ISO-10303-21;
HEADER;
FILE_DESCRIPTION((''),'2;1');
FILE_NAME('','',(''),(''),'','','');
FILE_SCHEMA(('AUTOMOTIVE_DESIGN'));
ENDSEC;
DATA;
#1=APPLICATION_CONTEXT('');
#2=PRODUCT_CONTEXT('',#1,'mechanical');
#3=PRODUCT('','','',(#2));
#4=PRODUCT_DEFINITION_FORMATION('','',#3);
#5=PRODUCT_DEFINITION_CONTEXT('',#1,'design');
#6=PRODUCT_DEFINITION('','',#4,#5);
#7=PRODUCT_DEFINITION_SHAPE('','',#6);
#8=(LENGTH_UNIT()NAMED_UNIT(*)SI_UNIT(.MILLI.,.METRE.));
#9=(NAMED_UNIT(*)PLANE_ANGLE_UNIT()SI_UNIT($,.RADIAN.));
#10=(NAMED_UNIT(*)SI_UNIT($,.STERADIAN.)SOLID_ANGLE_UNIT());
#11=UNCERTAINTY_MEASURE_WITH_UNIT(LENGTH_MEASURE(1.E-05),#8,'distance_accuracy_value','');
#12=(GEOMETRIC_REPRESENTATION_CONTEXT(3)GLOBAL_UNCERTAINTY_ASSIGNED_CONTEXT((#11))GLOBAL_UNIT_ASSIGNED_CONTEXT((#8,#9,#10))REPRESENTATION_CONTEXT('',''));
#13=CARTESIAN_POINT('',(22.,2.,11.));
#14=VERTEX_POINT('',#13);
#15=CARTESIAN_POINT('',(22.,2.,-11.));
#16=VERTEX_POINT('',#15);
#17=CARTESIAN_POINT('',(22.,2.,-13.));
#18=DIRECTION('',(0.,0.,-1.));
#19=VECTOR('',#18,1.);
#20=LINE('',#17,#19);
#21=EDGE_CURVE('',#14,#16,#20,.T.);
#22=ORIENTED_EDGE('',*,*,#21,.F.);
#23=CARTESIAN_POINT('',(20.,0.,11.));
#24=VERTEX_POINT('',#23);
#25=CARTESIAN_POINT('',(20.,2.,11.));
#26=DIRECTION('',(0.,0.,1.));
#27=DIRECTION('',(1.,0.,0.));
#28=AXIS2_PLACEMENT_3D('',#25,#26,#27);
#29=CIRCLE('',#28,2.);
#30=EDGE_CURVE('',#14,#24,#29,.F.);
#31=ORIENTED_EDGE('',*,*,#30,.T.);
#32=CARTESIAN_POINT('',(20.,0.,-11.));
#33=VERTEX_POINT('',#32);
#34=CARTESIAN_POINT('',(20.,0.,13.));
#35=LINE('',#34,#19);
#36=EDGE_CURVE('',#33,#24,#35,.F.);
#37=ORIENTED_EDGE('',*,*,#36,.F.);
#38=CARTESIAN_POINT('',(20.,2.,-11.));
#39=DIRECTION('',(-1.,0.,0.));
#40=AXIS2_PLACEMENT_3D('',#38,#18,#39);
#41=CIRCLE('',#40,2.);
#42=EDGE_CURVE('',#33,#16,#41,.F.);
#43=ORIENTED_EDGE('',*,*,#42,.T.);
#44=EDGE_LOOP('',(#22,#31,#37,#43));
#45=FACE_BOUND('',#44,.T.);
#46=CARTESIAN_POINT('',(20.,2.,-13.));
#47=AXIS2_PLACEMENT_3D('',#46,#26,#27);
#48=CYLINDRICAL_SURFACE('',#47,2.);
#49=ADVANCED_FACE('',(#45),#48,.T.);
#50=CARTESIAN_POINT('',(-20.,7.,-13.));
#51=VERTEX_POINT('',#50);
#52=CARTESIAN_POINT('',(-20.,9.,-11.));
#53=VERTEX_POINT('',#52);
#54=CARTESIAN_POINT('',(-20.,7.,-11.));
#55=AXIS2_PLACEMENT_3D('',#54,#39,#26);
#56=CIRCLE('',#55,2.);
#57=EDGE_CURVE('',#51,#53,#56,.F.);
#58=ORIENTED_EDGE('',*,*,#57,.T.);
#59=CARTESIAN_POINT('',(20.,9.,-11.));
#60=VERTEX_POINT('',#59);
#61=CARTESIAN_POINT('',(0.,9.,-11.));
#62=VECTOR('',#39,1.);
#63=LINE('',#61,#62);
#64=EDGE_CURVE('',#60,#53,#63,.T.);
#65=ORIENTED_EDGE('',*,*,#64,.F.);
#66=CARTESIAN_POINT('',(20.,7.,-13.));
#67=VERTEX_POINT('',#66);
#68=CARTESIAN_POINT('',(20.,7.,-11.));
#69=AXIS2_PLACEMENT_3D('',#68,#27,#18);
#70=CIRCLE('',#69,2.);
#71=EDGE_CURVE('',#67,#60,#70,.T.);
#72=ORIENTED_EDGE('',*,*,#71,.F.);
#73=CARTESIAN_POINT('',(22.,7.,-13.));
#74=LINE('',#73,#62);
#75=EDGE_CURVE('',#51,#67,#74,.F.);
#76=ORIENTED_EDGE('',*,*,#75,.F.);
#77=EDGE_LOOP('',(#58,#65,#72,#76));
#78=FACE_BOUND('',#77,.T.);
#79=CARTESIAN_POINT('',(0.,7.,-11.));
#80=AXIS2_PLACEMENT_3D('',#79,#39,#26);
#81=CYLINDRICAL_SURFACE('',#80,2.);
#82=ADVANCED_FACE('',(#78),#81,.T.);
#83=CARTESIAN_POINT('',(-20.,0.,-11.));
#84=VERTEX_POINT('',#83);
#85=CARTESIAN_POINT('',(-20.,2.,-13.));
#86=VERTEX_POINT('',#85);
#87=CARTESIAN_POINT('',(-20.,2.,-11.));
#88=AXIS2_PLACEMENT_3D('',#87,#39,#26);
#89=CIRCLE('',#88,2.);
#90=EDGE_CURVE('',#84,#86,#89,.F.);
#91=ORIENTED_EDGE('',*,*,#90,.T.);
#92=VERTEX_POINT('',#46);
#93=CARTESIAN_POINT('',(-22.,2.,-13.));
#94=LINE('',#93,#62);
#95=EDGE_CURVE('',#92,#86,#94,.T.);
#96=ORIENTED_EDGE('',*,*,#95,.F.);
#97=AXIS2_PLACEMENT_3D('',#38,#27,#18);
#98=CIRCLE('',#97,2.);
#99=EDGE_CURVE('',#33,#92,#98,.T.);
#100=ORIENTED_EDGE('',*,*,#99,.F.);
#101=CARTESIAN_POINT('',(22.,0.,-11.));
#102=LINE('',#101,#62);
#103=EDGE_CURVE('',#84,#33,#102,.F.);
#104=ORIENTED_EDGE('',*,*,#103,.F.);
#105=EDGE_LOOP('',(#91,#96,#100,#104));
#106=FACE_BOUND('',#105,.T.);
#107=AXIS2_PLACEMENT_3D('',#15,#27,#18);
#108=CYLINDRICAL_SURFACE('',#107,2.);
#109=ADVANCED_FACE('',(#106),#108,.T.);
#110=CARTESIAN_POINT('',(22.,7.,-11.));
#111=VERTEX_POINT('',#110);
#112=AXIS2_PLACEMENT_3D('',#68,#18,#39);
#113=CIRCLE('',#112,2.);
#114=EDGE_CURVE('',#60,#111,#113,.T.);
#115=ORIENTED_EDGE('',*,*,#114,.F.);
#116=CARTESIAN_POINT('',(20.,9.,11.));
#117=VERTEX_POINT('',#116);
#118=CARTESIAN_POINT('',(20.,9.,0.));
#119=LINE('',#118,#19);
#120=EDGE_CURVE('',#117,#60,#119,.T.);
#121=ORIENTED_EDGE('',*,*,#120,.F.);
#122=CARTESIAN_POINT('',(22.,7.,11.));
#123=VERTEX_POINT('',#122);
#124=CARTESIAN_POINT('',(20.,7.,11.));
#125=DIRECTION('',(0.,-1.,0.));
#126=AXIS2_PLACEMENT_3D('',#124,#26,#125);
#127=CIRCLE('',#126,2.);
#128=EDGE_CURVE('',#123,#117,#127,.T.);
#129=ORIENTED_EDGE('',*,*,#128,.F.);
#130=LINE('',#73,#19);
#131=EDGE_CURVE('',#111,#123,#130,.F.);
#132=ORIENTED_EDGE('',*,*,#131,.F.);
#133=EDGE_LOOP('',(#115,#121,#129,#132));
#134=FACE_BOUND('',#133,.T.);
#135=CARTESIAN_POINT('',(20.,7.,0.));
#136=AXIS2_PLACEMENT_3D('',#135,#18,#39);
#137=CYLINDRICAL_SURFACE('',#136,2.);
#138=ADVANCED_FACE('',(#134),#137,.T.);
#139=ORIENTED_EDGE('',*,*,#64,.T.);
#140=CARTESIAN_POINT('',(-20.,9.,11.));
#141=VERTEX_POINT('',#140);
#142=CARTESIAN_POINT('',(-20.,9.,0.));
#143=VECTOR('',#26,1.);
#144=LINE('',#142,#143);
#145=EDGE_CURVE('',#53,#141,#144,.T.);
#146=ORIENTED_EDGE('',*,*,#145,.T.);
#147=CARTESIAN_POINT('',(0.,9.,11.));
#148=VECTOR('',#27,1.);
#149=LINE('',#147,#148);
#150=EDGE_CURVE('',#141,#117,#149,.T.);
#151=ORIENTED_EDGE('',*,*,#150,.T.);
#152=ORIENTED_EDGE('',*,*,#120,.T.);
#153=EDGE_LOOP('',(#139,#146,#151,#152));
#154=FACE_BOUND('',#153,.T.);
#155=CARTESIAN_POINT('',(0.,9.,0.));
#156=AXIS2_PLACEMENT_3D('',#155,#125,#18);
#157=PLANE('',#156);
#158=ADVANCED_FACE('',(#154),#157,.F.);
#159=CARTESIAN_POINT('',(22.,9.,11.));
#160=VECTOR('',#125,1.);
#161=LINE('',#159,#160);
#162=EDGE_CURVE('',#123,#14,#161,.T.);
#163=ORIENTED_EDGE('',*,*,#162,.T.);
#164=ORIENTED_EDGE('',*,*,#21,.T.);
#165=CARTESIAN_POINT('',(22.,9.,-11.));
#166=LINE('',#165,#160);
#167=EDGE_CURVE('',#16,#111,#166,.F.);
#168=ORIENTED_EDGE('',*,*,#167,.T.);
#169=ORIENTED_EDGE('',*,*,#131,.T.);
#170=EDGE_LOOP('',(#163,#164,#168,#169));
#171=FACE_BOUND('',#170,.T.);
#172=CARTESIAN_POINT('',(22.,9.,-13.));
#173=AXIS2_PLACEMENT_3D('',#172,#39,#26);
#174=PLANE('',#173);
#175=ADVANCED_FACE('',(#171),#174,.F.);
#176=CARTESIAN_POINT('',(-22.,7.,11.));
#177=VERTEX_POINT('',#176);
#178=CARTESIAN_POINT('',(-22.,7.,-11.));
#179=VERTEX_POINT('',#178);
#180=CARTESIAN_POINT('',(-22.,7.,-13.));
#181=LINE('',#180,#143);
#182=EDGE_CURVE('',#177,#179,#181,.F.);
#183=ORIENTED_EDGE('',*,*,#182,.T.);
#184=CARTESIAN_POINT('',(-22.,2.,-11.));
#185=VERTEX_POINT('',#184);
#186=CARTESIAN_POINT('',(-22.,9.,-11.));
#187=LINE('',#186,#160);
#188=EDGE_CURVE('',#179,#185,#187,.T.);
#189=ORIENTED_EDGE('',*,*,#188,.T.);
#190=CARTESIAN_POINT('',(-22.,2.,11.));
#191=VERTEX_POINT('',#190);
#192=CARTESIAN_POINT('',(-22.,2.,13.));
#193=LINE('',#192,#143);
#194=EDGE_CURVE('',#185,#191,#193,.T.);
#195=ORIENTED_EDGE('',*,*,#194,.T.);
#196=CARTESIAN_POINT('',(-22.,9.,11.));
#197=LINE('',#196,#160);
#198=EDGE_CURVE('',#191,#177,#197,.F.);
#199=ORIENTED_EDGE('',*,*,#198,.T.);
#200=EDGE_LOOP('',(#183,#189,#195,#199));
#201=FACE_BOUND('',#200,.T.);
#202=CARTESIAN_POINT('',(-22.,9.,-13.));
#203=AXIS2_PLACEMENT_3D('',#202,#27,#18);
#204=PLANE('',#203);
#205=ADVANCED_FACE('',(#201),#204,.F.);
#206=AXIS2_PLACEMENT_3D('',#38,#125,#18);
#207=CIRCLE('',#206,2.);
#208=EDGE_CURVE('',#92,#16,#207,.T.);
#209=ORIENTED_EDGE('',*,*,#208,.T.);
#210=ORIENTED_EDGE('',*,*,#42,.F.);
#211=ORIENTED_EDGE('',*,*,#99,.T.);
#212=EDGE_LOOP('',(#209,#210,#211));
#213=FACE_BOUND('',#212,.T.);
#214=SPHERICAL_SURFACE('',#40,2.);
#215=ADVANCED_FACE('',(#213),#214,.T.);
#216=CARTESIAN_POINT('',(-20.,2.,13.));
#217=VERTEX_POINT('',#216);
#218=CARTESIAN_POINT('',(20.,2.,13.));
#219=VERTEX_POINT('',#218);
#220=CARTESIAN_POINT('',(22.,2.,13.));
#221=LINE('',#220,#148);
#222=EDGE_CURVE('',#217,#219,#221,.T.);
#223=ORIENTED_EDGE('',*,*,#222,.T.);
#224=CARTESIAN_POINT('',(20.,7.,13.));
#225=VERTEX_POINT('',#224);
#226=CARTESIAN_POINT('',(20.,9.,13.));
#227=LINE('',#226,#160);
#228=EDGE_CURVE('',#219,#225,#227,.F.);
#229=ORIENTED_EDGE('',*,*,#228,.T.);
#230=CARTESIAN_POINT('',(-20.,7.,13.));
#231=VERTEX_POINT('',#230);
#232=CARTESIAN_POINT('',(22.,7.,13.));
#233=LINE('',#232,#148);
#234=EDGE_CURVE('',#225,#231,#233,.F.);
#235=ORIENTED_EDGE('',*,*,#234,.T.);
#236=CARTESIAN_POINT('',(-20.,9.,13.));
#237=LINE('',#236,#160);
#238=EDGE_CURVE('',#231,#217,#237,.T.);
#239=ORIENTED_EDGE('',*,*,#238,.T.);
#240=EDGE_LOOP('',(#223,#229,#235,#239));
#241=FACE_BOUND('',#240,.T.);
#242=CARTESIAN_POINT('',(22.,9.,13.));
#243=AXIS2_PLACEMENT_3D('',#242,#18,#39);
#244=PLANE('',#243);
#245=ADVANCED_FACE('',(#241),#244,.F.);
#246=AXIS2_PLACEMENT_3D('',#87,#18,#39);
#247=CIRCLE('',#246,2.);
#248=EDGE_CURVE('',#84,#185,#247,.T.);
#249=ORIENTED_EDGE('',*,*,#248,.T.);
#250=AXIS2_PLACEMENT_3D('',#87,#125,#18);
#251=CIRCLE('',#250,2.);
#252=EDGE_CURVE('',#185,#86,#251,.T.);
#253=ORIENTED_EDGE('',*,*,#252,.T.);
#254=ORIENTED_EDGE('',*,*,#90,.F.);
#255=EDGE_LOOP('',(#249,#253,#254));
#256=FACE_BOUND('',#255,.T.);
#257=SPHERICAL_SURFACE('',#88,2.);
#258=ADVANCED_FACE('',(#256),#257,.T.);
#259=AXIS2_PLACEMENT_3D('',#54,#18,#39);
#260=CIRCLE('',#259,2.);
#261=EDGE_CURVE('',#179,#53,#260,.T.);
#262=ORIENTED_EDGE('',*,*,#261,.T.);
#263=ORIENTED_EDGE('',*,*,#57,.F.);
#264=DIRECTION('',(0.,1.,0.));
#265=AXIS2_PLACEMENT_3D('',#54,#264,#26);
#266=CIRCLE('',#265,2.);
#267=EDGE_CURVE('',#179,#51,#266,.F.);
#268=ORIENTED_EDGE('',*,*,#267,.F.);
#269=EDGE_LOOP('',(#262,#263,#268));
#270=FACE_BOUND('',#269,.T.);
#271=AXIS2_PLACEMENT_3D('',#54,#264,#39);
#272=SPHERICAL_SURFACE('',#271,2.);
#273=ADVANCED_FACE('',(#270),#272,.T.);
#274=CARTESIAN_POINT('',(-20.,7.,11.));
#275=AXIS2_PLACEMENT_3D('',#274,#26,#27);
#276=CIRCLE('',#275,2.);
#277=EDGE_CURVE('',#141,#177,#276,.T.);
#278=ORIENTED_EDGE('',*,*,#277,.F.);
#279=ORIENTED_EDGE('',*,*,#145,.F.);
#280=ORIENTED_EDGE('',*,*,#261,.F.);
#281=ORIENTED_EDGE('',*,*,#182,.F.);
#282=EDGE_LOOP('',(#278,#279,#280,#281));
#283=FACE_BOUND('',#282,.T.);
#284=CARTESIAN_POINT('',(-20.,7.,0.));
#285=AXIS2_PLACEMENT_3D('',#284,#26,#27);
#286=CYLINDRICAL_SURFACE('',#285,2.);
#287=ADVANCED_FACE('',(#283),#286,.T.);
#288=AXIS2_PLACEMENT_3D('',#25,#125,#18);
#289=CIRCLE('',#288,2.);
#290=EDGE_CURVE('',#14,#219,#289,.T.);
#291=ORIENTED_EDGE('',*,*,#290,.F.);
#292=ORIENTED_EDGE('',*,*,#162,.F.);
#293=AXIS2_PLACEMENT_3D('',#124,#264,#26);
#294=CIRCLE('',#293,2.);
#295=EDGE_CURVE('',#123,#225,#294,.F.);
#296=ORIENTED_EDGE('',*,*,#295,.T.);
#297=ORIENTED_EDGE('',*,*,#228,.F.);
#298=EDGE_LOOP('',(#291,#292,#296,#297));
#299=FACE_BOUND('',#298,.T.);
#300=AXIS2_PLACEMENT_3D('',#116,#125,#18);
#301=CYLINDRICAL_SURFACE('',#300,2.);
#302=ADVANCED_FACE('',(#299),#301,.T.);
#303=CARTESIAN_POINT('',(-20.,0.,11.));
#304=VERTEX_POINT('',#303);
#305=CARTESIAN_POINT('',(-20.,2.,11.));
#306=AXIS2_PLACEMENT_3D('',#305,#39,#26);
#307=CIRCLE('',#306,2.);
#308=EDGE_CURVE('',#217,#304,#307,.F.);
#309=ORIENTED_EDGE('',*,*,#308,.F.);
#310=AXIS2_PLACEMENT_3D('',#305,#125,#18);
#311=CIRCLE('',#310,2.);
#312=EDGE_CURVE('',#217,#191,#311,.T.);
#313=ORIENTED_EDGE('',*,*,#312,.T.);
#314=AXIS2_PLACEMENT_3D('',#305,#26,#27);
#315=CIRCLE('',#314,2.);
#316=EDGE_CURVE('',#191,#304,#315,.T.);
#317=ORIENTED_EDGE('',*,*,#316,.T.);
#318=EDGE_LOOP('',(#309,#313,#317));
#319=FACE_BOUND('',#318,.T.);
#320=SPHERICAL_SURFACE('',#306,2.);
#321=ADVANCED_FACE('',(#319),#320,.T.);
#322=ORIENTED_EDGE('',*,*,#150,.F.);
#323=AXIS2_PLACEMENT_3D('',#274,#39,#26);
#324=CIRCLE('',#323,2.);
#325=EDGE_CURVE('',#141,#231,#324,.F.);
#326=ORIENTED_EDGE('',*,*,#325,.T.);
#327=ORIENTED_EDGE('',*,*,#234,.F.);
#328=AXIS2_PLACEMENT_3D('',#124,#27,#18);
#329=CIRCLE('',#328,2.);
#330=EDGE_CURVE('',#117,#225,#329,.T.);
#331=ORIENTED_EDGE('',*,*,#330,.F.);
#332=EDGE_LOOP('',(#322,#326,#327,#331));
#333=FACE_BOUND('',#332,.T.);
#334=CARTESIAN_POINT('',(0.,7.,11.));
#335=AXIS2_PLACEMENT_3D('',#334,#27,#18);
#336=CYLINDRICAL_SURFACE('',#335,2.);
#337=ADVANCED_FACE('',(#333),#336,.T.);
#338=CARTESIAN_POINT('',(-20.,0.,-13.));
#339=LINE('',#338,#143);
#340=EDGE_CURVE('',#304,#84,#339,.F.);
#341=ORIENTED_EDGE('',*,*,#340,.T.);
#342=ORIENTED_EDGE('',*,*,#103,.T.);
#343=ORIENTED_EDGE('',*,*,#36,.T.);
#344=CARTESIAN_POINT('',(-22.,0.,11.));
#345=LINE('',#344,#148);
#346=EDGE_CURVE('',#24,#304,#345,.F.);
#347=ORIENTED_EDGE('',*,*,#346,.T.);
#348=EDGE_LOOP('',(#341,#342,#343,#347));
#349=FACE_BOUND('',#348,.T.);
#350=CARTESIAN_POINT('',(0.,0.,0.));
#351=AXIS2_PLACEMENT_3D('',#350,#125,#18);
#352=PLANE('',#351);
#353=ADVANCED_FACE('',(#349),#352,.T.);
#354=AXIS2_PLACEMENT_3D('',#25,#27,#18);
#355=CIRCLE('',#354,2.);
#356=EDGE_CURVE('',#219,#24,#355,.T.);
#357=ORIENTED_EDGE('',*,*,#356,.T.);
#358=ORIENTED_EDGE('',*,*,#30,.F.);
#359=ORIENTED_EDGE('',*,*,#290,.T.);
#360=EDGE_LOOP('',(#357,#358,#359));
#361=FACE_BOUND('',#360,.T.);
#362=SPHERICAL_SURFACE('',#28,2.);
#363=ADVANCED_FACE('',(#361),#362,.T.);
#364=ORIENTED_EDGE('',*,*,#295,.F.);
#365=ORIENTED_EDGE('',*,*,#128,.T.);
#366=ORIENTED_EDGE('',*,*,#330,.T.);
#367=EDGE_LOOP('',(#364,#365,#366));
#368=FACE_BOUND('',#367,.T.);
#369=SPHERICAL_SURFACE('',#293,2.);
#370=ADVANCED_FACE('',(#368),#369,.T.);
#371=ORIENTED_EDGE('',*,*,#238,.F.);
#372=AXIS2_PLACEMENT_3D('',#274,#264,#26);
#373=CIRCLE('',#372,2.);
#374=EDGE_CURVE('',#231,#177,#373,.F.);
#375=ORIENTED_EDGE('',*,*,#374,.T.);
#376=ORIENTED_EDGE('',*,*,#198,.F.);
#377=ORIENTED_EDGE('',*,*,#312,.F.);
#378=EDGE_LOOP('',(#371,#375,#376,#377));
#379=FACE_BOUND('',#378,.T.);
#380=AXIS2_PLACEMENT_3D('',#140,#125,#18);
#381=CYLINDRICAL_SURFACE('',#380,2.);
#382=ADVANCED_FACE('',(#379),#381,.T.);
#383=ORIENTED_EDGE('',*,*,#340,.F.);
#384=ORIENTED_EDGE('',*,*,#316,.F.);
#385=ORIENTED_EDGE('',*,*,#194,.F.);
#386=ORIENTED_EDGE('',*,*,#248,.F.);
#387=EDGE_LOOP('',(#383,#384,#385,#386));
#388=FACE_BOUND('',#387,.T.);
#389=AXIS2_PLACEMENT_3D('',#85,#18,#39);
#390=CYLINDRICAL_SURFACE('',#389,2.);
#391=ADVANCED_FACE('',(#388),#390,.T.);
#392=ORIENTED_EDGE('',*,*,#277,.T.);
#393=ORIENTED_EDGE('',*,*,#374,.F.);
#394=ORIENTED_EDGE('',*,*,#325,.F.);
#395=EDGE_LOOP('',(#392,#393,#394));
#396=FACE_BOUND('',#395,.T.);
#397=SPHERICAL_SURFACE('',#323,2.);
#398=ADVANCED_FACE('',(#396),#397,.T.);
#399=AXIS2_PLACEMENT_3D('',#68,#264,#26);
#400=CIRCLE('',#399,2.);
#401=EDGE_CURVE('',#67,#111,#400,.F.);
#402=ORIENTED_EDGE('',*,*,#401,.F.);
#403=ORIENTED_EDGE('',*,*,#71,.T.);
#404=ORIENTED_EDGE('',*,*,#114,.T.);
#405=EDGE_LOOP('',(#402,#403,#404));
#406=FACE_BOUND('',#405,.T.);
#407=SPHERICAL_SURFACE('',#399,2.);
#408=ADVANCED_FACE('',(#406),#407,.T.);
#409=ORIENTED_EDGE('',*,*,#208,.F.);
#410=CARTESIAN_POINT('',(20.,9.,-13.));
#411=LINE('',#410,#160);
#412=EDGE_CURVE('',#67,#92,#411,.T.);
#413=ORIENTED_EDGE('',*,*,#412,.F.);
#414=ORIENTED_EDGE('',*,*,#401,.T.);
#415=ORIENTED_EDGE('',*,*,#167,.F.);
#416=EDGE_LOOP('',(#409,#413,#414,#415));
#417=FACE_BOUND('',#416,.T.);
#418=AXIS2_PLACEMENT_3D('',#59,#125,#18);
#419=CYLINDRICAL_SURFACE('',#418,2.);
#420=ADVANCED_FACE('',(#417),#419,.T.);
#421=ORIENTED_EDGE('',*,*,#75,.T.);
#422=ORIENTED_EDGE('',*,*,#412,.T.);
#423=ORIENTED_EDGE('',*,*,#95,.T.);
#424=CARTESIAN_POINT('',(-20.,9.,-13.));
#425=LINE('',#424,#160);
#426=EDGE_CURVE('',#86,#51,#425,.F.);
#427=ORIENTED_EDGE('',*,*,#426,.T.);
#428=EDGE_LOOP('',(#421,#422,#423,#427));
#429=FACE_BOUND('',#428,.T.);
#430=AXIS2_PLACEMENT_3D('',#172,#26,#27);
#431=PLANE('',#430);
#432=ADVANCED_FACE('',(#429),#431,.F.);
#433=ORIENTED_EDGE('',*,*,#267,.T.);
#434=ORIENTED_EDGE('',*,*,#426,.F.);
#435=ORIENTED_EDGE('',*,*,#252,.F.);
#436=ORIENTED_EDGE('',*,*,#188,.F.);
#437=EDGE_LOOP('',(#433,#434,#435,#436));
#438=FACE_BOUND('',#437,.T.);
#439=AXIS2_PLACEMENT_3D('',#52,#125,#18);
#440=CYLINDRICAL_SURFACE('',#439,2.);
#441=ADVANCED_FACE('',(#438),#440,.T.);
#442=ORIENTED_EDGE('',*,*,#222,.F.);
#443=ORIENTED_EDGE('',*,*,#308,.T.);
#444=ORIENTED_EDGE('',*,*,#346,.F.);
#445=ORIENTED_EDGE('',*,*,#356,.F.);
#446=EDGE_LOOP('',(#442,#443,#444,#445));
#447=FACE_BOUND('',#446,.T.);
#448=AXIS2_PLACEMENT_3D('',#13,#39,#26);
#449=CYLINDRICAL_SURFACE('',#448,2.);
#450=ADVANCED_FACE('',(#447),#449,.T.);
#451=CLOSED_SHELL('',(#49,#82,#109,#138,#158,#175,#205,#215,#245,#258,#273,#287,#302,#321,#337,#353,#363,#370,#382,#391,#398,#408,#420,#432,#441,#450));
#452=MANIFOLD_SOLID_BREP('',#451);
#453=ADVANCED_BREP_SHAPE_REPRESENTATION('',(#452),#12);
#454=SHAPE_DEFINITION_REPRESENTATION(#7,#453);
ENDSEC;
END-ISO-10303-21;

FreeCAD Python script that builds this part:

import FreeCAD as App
import Part
import Sketcher
from FreeCAD import Vector
Q = App.Units.Quantity

doc = App.newDocument("Part")
body = doc.addObject("PartDesign::Body", "Body")

sketch1 = body.newObject("Sketcher::SketchObject", "Sketch")
sketch1.AttachmentSupport = (doc.getObject("XZ_Plane"), [""])
sketch1.MapMode = "FlatFace"
sketch1.addGeometry(Part.LineSegment(Vector(-22, -13, 0), Vector(-22, 13, 0)), False)
sketch1.addGeometry(Part.LineSegment(Vector(-22, 13, 0), Vector(22, 13, 0)), False)
sketch1.addGeometry(Part.LineSegment(Vector(22, 13, 0), Vector(22, -13, 0)), False)
sketch1.addGeometry(Part.LineSegment(Vector(22, -13, 0), Vector(-22, -13, 0)), False)
sketch1.addConstraint(Sketcher.Constraint("Coincident", 0, 2, 1, 1))
sketch1.addConstraint(Sketcher.Constraint("Coincident", 1, 2, 2, 1))
sketch1.addConstraint(Sketcher.Constraint("Coincident", 2, 2, 3, 1))
sketch1.addConstraint(Sketcher.Constraint("Coincident", 3, 2, 0, 1))
sketch1.addConstraint(Sketcher.Constraint("Vertical", 0))
sketch1.addConstraint(Sketcher.Constraint("Horizontal", 1))
sketch1.addConstraint(Sketcher.Constraint("Vertical", 2))
sketch1.addConstraint(Sketcher.Constraint("Horizontal", 3))
sketch1.addConstraint(Sketcher.Constraint("Symmetric", 0, 2, 2, 2, -1, 1))
sketch1.addConstraint(Sketcher.Constraint("DistanceX", 1, 1, 1, 2, Q("44 mm")))
sketch1.addConstraint(Sketcher.Constraint("DistanceY", 0, 1, 0, 2, Q("26 mm")))
pad1 = body.newObject("PartDesign::Pad", "Pad")
pad1.Profile = sketch1
pad1.Length = 9
pad1.Reversed = True
doc.recompute()

fillet = body.newObject("PartDesign::Fillet", "Fillet")
fillet.Base = (pad1, ["Edge1"])
fillet.UseAllEdges = True
fillet.Radius = 2

doc.recompute()
